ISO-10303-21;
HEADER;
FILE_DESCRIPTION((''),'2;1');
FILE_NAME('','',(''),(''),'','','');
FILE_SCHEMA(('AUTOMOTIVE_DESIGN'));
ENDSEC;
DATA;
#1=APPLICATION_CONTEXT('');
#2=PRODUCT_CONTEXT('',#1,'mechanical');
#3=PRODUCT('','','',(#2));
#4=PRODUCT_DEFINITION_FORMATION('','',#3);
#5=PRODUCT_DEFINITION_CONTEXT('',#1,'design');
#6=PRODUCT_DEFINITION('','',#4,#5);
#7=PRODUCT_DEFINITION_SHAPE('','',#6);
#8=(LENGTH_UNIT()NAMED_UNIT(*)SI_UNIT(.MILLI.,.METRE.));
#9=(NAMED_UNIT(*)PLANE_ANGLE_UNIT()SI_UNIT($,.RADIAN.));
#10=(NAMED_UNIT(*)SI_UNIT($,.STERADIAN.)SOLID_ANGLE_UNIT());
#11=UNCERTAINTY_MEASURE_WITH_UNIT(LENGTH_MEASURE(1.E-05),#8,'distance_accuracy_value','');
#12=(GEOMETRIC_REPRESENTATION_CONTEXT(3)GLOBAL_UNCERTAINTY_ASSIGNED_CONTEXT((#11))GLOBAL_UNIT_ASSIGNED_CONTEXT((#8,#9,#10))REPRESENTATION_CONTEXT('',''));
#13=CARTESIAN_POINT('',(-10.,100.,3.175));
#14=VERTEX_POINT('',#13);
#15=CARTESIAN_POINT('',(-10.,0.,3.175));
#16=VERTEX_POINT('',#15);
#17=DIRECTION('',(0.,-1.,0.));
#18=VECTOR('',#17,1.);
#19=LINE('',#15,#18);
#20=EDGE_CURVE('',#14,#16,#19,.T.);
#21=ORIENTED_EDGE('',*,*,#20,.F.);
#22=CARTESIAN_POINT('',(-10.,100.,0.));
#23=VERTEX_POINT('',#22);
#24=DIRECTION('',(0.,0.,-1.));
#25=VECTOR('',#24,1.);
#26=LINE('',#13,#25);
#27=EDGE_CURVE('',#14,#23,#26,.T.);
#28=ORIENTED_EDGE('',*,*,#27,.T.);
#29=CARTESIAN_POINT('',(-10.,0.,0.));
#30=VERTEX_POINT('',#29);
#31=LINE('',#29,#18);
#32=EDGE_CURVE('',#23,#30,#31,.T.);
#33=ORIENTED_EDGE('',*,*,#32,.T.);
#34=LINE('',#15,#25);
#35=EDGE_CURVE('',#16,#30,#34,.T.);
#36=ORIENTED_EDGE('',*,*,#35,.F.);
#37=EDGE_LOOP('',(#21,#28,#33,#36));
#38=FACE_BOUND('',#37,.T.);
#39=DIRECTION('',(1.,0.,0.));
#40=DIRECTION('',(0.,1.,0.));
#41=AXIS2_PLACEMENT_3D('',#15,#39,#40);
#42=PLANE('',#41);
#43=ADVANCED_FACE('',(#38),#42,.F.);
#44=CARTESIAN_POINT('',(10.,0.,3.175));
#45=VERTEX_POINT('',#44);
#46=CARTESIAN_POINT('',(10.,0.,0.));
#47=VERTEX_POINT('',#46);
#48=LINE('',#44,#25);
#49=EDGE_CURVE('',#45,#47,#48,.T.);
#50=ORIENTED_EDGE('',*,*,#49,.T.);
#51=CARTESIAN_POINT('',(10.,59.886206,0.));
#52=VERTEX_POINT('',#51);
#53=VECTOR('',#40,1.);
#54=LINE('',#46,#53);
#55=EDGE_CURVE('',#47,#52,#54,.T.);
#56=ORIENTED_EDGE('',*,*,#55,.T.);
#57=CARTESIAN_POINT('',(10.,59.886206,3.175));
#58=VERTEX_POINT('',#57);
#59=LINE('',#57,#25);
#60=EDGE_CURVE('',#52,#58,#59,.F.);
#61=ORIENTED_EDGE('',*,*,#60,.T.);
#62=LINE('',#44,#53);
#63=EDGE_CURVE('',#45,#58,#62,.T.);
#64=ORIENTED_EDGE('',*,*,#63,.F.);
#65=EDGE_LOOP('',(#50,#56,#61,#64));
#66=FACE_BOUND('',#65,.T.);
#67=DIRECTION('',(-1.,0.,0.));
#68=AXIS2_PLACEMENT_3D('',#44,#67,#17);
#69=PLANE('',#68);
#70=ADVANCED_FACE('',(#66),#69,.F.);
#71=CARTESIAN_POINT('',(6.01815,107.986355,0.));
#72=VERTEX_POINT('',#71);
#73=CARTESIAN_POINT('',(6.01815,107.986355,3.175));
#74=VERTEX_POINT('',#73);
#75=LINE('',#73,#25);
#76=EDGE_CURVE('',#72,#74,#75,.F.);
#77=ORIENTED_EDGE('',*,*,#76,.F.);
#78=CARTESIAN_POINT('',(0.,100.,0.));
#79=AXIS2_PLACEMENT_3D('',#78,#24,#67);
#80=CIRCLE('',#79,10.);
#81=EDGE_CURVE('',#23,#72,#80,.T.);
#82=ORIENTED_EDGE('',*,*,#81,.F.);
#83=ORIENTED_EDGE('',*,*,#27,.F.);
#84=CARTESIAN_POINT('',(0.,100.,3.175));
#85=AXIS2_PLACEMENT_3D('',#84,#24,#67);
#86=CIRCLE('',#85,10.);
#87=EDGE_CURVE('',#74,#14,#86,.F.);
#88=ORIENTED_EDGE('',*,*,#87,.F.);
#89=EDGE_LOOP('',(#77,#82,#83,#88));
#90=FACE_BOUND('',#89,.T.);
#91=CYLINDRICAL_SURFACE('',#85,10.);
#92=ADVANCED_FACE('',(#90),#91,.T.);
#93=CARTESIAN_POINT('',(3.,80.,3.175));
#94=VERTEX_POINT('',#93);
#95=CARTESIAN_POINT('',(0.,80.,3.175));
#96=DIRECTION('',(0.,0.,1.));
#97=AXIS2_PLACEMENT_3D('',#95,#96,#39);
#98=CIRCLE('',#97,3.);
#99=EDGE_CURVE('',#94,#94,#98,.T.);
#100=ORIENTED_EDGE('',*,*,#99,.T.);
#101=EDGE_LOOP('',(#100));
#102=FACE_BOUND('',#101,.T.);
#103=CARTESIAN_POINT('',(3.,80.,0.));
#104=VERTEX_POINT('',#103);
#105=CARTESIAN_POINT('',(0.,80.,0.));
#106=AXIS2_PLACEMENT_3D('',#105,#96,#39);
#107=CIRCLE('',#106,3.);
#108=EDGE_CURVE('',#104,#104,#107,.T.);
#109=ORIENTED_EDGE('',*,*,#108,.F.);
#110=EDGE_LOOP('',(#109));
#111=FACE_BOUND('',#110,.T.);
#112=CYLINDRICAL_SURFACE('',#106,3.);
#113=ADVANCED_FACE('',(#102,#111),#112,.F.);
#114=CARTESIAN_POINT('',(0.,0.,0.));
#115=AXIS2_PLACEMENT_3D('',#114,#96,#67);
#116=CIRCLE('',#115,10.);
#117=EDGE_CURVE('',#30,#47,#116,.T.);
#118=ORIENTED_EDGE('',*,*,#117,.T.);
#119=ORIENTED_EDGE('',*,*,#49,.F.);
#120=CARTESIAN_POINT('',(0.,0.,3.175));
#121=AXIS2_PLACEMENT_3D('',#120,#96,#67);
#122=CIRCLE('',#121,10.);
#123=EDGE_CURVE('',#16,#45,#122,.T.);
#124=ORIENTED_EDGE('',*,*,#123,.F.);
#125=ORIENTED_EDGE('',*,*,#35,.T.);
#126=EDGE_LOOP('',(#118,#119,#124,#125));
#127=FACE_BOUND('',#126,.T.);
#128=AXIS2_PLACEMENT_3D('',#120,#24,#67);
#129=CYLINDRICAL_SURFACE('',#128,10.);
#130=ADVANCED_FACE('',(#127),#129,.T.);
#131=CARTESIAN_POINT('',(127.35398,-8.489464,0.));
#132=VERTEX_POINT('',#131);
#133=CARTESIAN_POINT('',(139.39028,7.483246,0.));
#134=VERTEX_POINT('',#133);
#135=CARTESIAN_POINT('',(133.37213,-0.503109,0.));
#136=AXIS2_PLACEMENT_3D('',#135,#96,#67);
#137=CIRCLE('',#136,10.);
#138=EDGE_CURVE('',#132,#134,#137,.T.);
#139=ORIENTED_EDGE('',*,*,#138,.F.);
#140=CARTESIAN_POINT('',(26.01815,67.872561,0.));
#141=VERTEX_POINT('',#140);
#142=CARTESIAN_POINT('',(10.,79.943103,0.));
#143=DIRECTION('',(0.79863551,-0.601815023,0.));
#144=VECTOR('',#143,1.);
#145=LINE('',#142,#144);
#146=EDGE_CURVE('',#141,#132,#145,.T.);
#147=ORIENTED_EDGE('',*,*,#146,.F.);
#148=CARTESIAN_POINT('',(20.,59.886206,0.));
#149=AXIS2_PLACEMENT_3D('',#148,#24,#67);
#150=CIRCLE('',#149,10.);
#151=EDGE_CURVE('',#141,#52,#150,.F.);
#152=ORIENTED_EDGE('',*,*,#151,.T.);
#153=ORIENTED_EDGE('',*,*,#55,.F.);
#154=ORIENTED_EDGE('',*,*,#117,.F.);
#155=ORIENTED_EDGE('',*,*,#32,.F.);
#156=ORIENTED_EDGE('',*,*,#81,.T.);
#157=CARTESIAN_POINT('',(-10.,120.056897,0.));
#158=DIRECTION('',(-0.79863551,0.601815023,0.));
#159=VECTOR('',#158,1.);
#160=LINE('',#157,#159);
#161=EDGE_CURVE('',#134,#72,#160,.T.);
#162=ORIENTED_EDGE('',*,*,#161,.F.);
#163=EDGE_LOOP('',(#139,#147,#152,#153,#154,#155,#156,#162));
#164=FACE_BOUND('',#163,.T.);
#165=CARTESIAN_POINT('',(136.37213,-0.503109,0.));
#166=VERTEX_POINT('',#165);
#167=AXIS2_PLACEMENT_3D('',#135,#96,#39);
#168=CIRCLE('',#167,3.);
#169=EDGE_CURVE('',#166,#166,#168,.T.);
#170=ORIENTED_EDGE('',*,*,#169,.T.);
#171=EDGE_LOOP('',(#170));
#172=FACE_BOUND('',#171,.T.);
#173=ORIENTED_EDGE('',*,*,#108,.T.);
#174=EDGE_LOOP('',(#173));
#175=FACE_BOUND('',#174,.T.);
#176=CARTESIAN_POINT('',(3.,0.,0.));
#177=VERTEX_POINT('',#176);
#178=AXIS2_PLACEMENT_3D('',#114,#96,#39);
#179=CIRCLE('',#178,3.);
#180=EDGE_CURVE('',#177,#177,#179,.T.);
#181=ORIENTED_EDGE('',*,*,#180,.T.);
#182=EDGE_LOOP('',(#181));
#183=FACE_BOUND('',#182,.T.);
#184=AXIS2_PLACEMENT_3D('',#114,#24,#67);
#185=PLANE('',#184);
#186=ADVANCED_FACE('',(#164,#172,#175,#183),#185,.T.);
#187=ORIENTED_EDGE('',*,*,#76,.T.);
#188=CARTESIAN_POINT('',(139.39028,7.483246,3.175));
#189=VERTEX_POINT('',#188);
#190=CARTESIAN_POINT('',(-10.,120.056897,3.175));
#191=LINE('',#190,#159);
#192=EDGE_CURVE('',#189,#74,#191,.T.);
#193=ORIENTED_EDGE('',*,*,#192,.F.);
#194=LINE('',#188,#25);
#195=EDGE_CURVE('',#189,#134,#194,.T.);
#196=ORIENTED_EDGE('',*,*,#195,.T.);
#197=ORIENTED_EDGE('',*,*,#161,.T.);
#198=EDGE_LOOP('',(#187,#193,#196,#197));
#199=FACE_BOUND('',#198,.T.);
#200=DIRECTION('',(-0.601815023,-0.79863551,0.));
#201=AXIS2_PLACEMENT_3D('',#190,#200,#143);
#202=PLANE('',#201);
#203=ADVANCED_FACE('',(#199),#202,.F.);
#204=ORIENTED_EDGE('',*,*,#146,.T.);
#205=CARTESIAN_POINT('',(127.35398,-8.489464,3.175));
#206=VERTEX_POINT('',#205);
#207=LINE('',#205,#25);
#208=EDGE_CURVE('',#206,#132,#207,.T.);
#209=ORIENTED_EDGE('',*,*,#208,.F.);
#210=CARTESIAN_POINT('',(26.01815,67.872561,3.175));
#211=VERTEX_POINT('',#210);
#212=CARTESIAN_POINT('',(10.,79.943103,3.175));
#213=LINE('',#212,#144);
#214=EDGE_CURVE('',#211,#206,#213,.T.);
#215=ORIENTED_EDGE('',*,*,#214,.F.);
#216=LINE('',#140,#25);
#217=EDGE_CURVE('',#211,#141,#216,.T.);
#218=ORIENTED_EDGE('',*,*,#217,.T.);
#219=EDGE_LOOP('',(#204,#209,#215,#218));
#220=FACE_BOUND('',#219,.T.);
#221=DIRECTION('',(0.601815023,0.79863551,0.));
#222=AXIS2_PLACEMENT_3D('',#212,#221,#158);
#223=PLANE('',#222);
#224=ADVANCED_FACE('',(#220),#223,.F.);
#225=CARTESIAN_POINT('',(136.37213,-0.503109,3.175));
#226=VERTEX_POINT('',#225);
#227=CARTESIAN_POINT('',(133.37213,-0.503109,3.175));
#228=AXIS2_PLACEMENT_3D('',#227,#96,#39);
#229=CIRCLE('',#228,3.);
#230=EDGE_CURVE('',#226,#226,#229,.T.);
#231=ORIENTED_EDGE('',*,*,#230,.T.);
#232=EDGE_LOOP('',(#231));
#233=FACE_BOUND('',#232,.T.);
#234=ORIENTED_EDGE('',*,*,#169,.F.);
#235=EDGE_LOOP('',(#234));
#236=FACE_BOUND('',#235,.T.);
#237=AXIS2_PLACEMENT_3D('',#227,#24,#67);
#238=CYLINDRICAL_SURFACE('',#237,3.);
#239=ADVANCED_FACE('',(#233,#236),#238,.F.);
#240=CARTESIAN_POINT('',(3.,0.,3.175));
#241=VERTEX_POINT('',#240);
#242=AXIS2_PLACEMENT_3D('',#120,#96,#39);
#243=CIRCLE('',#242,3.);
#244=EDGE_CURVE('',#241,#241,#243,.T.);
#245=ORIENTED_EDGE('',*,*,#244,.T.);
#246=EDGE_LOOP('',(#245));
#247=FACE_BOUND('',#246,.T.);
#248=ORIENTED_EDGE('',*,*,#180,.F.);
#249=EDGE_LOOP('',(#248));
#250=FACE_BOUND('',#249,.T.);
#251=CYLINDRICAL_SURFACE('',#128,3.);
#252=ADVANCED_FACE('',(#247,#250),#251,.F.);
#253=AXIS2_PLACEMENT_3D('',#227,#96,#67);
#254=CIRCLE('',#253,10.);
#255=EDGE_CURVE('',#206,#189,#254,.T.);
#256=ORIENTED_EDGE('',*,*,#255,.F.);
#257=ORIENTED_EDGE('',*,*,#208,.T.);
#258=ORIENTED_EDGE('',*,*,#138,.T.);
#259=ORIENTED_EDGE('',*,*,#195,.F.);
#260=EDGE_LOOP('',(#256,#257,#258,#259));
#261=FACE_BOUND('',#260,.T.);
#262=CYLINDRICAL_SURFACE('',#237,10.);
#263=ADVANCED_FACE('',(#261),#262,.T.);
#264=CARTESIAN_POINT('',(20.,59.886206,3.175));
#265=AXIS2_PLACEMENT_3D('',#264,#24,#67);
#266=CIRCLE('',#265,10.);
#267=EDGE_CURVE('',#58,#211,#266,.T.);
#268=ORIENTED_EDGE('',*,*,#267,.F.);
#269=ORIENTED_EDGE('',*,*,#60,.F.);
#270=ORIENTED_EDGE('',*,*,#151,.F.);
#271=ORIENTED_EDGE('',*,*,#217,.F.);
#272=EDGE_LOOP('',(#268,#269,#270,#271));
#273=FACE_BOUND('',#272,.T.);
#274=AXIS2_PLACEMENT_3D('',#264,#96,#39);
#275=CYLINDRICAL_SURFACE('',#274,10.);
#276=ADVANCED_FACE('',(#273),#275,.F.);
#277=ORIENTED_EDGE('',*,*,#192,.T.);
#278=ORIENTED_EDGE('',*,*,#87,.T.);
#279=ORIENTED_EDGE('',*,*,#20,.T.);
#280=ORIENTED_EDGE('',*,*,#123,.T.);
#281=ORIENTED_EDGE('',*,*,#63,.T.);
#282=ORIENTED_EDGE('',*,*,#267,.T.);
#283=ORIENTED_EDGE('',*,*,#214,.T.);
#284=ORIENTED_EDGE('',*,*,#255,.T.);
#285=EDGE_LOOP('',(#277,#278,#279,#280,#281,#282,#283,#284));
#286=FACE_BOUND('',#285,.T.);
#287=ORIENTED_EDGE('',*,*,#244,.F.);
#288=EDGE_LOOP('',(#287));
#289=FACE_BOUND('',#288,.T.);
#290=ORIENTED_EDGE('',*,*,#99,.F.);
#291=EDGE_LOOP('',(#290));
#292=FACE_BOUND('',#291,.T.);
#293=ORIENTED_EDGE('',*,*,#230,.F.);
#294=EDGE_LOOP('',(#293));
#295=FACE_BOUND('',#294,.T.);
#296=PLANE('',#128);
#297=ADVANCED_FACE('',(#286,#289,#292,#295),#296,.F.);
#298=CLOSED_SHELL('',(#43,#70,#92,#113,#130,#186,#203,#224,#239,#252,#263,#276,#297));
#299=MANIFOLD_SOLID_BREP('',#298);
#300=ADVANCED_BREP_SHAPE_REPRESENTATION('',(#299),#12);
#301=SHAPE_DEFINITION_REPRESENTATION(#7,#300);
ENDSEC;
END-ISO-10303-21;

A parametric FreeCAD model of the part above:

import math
import FreeCAD as App
import Part
import Sketcher
from FreeCAD import Vector
Q = App.Units.Quantity


def edges_at(feature, points):
    """Names of the edges that pass closest to the given points."""
    edges = feature.Shape.Edges
    near = lambda p: min(range(len(edges)), key=lambda i: edges[i].distToShape(Part.Vertex(*p))[0])
    return sorted({f"Edge{near(p) + 1}" for p in points})

doc = App.newDocument("Part")
params = doc.addObject("Spreadsheet::Sheet", "Params")
for row, (alias, value) in enumerate([
    ("sketch1_diameter", "6 mm"),
    ("sketch1_radius", "10 mm"),
    ("pad1_length", "3.175 mm"),
    ("fillet_radius", "10 mm"),
    ("sketch2_diameter", "6 mm"),
], start=1):
    params.set(f"A{row}", alias)
    params.set(f"B{row}", "=" + value)
    params.setAlias(f"B{row}", alias)

body = doc.addObject("PartDesign::Body", "Body")

sketch1 = body.newObject("Sketcher::SketchObject", "Sketch")
sketch1.AttachmentSupport = (doc.getObject("XY_Plane"), [""])
sketch1.MapMode = "FlatFace"
sketch1.addGeometry([
    Part.LineSegment(Vector(10, 0, 0), Vector(10, 79.9, 0)),
    Part.LineSegment(Vector(10, 79.9, 0), Vector(127.4, -8.5, 0)),
    Part.ArcOfCircle(Part.Circle(Vector(133.4, -0.5, 0), Vector(0, 0, 1), 10), math.radians(-127), math.radians(53)),
    Part.LineSegment(Vector(139.4, 7.5, 0), Vector(-10, 120.1, 0)),
    Part.LineSegment(Vector(-10, 120.1, 0), Vector(-10, 0, 0)),
    Part.ArcOfCircle(Part.Circle(Vector(0, 0, 0), Vector(0, 0, 1), 10), math.radians(180), math.radians(360)),
    Part.Circle(Vector(133.4, -0.5, 0), Vector(0, 0, 1), 3),
    Part.Circle(Vector(0, 0, 0), Vector(0, 0, 1), 3),
], False)
sketch1.addConstraint([
    Sketcher.Constraint("Coincident", 0, 2, 1, 1),
    Sketcher.Constraint("Tangent", 1, 2, 2, 1),
    Sketcher.Constraint("Tangent", 2, 2, 3, 1),
    Sketcher.Constraint("Coincident", 3, 2, 4, 1),
    Sketcher.Constraint("Tangent", 4, 2, 5, 1),
    Sketcher.Constraint("Tangent", 5, 2, 0, 1),
    Sketcher.Constraint("Vertical", 0),
    Sketcher.Constraint("Vertical", 4),
    Sketcher.Constraint("Coincident", 5, 3, -1, 1),
    Sketcher.Constraint("Coincident", 7, 3, -1, 1),
    Sketcher.Constraint("Coincident", 6, 3, 2, 3),
    Sketcher.Constraint("Equal", 2, 5),
    Sketcher.Constraint("Equal", 6, 7),
    Sketcher.Constraint("Parallel", 1, 3),
    Sketcher.Constraint("Diameter", 6, Q("6 mm")),
    Sketcher.Constraint("Radius", 2, Q("10 mm")),
    Sketcher.Constraint("Angle", 1, Q("-37 deg")),
    Sketcher.Constraint("DistanceY", 0, 1, 0, 2, Q("79.943103 mm")),
    Sketcher.Constraint("DistanceX", -1, 1, 2, 3, Q("133.37213 mm")),
])
sketch1.setExpression("Constraints[14]", "Params.sketch1_diameter")
sketch1.setExpression("Constraints[15]", "Params.sketch1_radius")
pad1 = body.newObject("PartDesign::Pad", "Pad")
pad1.Profile = sketch1
pad1.setExpression("Length", "Params.pad1_length")
doc.recompute()

fillet = body.newObject("PartDesign::Fillet", "Fillet")
fillet.Base = (pad1, edges_at(pad1, [(-10, 120.057, 1.587), (10, 79.943, 1.587)]))
fillet.setExpression("Radius", "Params.fillet_radius")

sketch2 = body.newObject("Sketcher::SketchObject", "Sketch001")
sketch2.AttachmentSupport = (doc.getObject("XY_Plane"), [""])
sketch2.MapMode = "FlatFace"
sketch2.AttachmentOffset = App.Placement(Vector(0, 0, 3.175), App.Rotation())
sketch2.addGeometry(Part.Circle(Vector(0, 80, 0), Vector(0, 0, 1), 3), False)
sketch2.addConstraint([
    Sketcher.Constraint("PointOnObject", 0, 3, -2),
    Sketcher.Constraint("Diameter", 0, Q("6 mm")),
    Sketcher.Constraint("DistanceY", -1, 1, 0, 3, Q("80 mm")),
])
sketch2.setExpression("Constraints[1]", "Params.sketch2_diameter")
pocket1 = body.newObject("PartDesign::Pocket", "Pocket")
pocket1.Profile = sketch2
pocket1.Type = "ThroughAll"

doc.recompute()
